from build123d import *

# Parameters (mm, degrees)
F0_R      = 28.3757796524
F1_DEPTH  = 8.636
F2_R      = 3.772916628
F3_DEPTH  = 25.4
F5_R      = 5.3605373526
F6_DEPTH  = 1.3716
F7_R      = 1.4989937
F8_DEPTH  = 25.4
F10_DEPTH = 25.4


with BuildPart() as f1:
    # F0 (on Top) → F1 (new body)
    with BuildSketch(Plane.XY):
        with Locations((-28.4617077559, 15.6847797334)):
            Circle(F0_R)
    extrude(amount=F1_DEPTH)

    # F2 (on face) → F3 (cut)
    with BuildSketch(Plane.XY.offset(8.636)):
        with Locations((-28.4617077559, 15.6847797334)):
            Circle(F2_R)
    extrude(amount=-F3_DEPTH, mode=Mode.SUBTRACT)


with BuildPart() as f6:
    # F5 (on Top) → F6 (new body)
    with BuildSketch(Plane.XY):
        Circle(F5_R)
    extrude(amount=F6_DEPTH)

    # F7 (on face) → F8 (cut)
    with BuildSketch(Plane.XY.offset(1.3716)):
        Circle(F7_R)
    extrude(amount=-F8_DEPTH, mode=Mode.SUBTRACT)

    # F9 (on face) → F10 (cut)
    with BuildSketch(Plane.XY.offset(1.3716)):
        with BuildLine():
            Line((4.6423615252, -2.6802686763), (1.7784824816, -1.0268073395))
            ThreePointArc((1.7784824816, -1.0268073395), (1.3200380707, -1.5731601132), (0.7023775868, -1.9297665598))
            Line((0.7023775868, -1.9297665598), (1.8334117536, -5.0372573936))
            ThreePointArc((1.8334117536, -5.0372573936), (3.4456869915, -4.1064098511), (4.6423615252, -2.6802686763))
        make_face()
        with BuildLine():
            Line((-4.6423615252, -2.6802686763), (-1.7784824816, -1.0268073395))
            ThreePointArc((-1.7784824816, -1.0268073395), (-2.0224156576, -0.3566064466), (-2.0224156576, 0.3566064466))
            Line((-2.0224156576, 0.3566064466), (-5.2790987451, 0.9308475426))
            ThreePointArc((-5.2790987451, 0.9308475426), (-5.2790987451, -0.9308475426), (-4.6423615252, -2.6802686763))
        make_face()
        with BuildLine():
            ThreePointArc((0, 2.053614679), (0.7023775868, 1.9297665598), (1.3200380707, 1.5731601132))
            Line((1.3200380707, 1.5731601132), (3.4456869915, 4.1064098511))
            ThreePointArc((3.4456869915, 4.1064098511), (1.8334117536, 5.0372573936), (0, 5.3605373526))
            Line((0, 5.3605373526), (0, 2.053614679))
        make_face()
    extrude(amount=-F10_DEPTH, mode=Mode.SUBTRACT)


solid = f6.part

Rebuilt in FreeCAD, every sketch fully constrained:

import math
import FreeCAD as App
import Part
import Sketcher
Q = App.Units.Quantity

doc = App.newDocument("Part")
body = doc.addObject("PartDesign::Body", "Body")

# Sketch on XY plane
sketch1 = body.newObject("Sketcher::SketchObject", "Sketch")
sketch1.AttachmentSupport = (doc.getObject("XY_Plane"), [""])
sketch1.MapMode = "FlatFace"
sketch1.addGeometry(Part.Circle(App.Vector(-28, 16, 0), App.Vector(0, 0, 1), 28), False)
sketch1.addConstraint(Sketcher.Constraint("Diameter", 0, Q("56.751559 mm")))
sketch1.addConstraint(Sketcher.Constraint("DistanceY", -1, 1, 0, 3, Q("15.68478 mm")))
sketch1.addConstraint(Sketcher.Constraint("DistanceX", 0, 3, -1, 1, Q("28.461708 mm")))
pad1 = body.newObject("PartDesign::Pad", "Pad")
pad1.Profile = sketch1
pad1.Length = Q("0.34 in")

# Sketch on XY plane
sketch2 = body.newObject("Sketcher::SketchObject", "Sketch001")
sketch2.AttachmentSupport = (doc.getObject("XY_Plane"), [""])
sketch2.MapMode = "FlatFace"
sketch2.AttachmentOffset = App.Placement(App.Vector(0, 0, 0.34 * 25.4), App.Rotation())
sketch2.addGeometry(Part.Circle(App.Vector(-28.5, 15.7, 0), App.Vector(0, 0, 1), 3.8), False)
sketch2.addConstraint(Sketcher.Constraint("Diameter", 0, Q("7.545833 mm")))
sketch2.addConstraint(Sketcher.Constraint("DistanceY", -1, 1, 0, 3, Q("15.68478 mm")))
sketch2.addConstraint(Sketcher.Constraint("DistanceX", 0, 3, -1, 1, Q("28.461708 mm")))
pocket1 = body.newObject("PartDesign::Pocket", "Pocket")
pocket1.Profile = sketch2
pocket1.Length = Q("1 in")
body2 = doc.addObject("PartDesign::Body", "Body001")

# Sketch on XY plane
sketch3 = body2.newObject("Sketcher::SketchObject", "Sketch002")
sketch3.AttachmentSupport = (doc.getObject("XY_Plane001"), [""])
sketch3.MapMode = "FlatFace"
sketch3.addGeometry(Part.Circle(App.Vector(0, 0, 0), App.Vector(0, 0, 1), 5), False)
sketch3.addConstraint(Sketcher.Constraint("Coincident", 0, 3, -1, 1))
sketch3.addConstraint(Sketcher.Constraint("Diameter", 0, Q("10.721075 mm")))
pad2 = body2.newObject("PartDesign::Pad", "Pad001")
pad2.Profile = sketch3
pad2.Length = Q("0.054 in")

# Sketch on XY plane
sketch4 = body2.newObject("Sketcher::SketchObject", "Sketch003")
sketch4.AttachmentSupport = (doc.getObject("XY_Plane001"), [""])
sketch4.MapMode = "FlatFace"
sketch4.AttachmentOffset = App.Placement(App.Vector(0, 0, 0.054 * 25.4), App.Rotation())
sketch4.addGeometry(Part.Circle(App.Vector(0, 0, 0), App.Vector(0, 0, 1), 1.5), False)
sketch4.addConstraint(Sketcher.Constraint("Coincident", 0, 3, -1, 1))
sketch4.addConstraint(Sketcher.Constraint("Diameter", 0, Q("2.997987 mm")))
pocket2 = body2.newObject("PartDesign::Pocket", "Pocket001")
pocket2.Profile = sketch4
pocket2.Length = Q("1 in")

# Sketch on XY plane
sketch5 = body2.newObject("Sketcher::SketchObject", "Sketch004")
sketch5.AttachmentSupport = (doc.getObject("XY_Plane001"), [""])
sketch5.MapMode = "FlatFace"
sketch5.AttachmentOffset = App.Placement(App.Vector(0, 0, 0.054 * 25.4), App.Rotation())
sketch5.addGeometry(Part.LineSegment(App.Vector(4.6, -2.7, 0), App.Vector(1.8, -1, 0)), False)
sketch5.addGeometry(Part.ArcOfCircle(Part.Circle(App.Vector(0, 0, 0), App.Vector(0, 0, 1), 2.1), math.radians(-70), math.radians(-30)), False)
sketch5.addGeometry(Part.LineSegment(App.Vector(0.7, -1.9, 0), App.Vector(1.8, -5, 0)), False)
sketch5.addGeometry(Part.ArcOfCircle(Part.Circle(App.Vector(0, 0, 0), App.Vector(0, 0, 1), 5.4), math.radians(-70), math.radians(-30)), False)
sketch5.addGeometry(Part.LineSegment(App.Vector(-4.6, -2.7, 0), App.Vector(-1.8, -1, 0)), False)
sketch5.addGeometry(Part.ArcOfCircle(Part.Circle(App.Vector(0, 0, 0), App.Vector(0, 0, 1), 2.1), math.radians(170), math.radians(210)), False)
sketch5.addGeometry(Part.LineSegment(App.Vector(-2, 0.4, 0), App.Vector(-5.3, 0.9, 0)), False)
sketch5.addGeometry(Part.ArcOfCircle(Part.Circle(App.Vector(0, 0, 0), App.Vector(0, 0, 1), 5.4), math.radians(170), math.radians(210)), False)
sketch5.addGeometry(Part.ArcOfCircle(Part.Circle(App.Vector(0, 0, 0), App.Vector(0, 0, 1), 2.1), math.radians(50), math.radians(90)), False)
sketch5.addGeometry(Part.LineSegment(App.Vector(1.3, 1.6, 0), App.Vector(3.4, 4.1, 0)), False)
sketch5.addGeometry(Part.ArcOfCircle(Part.Circle(App.Vector(0, 0, 0), App.Vector(0, 0, 1), 5.4), math.radians(50), math.radians(90)), False)
sketch5.addGeometry(Part.LineSegment(App.Vector(0, 5.4, 0), App.Vector(0, 2.1, 0)), False)
sketch5.addConstraint(Sketcher.Constraint("Coincident", 0, 2, 1, 2))
sketch5.addConstraint(Sketcher.Constraint("Coincident", 1, 1, 2, 1))
sketch5.addConstraint(Sketcher.Constraint("Coincident", 2, 2, 3, 1))
sketch5.addConstraint(Sketcher.Constraint("Coincident", 3, 2, 0, 1))
sketch5.addConstraint(Sketcher.Constraint("Coincident", 4, 2, 5, 2))
sketch5.addConstraint(Sketcher.Constraint("Coincident", 5, 1, 6, 1))
sketch5.addConstraint(Sketcher.Constraint("Coincident", 6, 2, 7, 1))
sketch5.addConstraint(Sketcher.Constraint("Coincident", 7, 2, 4, 1))
sketch5.addConstraint(Sketcher.Constraint("Coincident", 8, 1, 9, 1))
sketch5.addConstraint(Sketcher.Constraint("Coincident", 9, 2, 10, 1))
sketch5.addConstraint(Sketcher.Constraint("Coincident", 10, 2, 11, 1))
sketch5.addConstraint(Sketcher.Constraint("Coincident", 11, 2, 8, 2))
sketch5.addConstraint(Sketcher.Constraint("Vertical", 11))
sketch5.addConstraint(Sketcher.Constraint("Coincident", 1, 3, -1, 1))
sketch5.addConstraint(Sketcher.Constraint("Coincident", 3, 3, -1, 1))
sketch5.addConstraint(Sketcher.Constraint("Coincident", 5, 3, -1, 1))
sketch5.addConstraint(Sketcher.Constraint("Coincident", 7, 3, -1, 1))
sketch5.addConstraint(Sketcher.Constraint("Coincident", 8, 3, -1, 1))
sketch5.addConstraint(Sketcher.Constraint("Coincident", 10, 3, -1, 1))
sketch5.addConstraint(Sketcher.Constraint("Equal", 1, 5))
sketch5.addConstraint(Sketcher.Constraint("Equal", 3, 7))
sketch5.addConstraint(Sketcher.Constraint("Equal", 5, 8))
sketch5.addConstraint(Sketcher.Constraint("Equal", 7, 10))
sketch5.addConstraint(Sketcher.Constraint("PointOnObject", 10, 2, -2))
sketch5.addConstraint(Sketcher.Constraint("Horizontal", 0, 2, 4, 2))
sketch5.addConstraint(Sketcher.Constraint("Horizontal", 3, 2, 7, 2))
sketch5.addConstraint(Sketcher.Constraint("Angle", 0, Q("150 deg")))
sketch5.addConstraint(Sketcher.Constraint("Angle", 2, Q("-70 deg")))
sketch5.addConstraint(Sketcher.Constraint("Angle", 6, Q("170 deg")))
sketch5.addConstraint(Sketcher.Constraint("Angle", 9, Q("50 deg")))
sketch5.addConstraint(Sketcher.Constraint("Radius", 1, Q("2.053615 mm")))
sketch5.addConstraint(Sketcher.Constraint("Radius", 3, Q("5.360537 mm")))
sketch5.addConstraint(Sketcher.Constraint("DistanceX", 6, 2, -1, 1, Q("5.279099 mm")))
sketch5.addConstraint(Sketcher.Constraint("DistanceX", -1, 1, 2, 2, Q("1.833412 mm")))
sketch5.addConstraint(Sketcher.Constraint("DistanceX", -1, 1, 3, 2, Q("4.642362 mm")))
sketch5.addConstraint(Sketcher.Constraint("DistanceX", -1, 1, 8, 1, Q("1.320038 mm")))
pocket3 = body2.newObject("PartDesign::Pocket", "Pocket002")
pocket3.Profile = sketch5
pocket3.Length = Q("1 in")
body.Visibility = False

doc.recompute()
